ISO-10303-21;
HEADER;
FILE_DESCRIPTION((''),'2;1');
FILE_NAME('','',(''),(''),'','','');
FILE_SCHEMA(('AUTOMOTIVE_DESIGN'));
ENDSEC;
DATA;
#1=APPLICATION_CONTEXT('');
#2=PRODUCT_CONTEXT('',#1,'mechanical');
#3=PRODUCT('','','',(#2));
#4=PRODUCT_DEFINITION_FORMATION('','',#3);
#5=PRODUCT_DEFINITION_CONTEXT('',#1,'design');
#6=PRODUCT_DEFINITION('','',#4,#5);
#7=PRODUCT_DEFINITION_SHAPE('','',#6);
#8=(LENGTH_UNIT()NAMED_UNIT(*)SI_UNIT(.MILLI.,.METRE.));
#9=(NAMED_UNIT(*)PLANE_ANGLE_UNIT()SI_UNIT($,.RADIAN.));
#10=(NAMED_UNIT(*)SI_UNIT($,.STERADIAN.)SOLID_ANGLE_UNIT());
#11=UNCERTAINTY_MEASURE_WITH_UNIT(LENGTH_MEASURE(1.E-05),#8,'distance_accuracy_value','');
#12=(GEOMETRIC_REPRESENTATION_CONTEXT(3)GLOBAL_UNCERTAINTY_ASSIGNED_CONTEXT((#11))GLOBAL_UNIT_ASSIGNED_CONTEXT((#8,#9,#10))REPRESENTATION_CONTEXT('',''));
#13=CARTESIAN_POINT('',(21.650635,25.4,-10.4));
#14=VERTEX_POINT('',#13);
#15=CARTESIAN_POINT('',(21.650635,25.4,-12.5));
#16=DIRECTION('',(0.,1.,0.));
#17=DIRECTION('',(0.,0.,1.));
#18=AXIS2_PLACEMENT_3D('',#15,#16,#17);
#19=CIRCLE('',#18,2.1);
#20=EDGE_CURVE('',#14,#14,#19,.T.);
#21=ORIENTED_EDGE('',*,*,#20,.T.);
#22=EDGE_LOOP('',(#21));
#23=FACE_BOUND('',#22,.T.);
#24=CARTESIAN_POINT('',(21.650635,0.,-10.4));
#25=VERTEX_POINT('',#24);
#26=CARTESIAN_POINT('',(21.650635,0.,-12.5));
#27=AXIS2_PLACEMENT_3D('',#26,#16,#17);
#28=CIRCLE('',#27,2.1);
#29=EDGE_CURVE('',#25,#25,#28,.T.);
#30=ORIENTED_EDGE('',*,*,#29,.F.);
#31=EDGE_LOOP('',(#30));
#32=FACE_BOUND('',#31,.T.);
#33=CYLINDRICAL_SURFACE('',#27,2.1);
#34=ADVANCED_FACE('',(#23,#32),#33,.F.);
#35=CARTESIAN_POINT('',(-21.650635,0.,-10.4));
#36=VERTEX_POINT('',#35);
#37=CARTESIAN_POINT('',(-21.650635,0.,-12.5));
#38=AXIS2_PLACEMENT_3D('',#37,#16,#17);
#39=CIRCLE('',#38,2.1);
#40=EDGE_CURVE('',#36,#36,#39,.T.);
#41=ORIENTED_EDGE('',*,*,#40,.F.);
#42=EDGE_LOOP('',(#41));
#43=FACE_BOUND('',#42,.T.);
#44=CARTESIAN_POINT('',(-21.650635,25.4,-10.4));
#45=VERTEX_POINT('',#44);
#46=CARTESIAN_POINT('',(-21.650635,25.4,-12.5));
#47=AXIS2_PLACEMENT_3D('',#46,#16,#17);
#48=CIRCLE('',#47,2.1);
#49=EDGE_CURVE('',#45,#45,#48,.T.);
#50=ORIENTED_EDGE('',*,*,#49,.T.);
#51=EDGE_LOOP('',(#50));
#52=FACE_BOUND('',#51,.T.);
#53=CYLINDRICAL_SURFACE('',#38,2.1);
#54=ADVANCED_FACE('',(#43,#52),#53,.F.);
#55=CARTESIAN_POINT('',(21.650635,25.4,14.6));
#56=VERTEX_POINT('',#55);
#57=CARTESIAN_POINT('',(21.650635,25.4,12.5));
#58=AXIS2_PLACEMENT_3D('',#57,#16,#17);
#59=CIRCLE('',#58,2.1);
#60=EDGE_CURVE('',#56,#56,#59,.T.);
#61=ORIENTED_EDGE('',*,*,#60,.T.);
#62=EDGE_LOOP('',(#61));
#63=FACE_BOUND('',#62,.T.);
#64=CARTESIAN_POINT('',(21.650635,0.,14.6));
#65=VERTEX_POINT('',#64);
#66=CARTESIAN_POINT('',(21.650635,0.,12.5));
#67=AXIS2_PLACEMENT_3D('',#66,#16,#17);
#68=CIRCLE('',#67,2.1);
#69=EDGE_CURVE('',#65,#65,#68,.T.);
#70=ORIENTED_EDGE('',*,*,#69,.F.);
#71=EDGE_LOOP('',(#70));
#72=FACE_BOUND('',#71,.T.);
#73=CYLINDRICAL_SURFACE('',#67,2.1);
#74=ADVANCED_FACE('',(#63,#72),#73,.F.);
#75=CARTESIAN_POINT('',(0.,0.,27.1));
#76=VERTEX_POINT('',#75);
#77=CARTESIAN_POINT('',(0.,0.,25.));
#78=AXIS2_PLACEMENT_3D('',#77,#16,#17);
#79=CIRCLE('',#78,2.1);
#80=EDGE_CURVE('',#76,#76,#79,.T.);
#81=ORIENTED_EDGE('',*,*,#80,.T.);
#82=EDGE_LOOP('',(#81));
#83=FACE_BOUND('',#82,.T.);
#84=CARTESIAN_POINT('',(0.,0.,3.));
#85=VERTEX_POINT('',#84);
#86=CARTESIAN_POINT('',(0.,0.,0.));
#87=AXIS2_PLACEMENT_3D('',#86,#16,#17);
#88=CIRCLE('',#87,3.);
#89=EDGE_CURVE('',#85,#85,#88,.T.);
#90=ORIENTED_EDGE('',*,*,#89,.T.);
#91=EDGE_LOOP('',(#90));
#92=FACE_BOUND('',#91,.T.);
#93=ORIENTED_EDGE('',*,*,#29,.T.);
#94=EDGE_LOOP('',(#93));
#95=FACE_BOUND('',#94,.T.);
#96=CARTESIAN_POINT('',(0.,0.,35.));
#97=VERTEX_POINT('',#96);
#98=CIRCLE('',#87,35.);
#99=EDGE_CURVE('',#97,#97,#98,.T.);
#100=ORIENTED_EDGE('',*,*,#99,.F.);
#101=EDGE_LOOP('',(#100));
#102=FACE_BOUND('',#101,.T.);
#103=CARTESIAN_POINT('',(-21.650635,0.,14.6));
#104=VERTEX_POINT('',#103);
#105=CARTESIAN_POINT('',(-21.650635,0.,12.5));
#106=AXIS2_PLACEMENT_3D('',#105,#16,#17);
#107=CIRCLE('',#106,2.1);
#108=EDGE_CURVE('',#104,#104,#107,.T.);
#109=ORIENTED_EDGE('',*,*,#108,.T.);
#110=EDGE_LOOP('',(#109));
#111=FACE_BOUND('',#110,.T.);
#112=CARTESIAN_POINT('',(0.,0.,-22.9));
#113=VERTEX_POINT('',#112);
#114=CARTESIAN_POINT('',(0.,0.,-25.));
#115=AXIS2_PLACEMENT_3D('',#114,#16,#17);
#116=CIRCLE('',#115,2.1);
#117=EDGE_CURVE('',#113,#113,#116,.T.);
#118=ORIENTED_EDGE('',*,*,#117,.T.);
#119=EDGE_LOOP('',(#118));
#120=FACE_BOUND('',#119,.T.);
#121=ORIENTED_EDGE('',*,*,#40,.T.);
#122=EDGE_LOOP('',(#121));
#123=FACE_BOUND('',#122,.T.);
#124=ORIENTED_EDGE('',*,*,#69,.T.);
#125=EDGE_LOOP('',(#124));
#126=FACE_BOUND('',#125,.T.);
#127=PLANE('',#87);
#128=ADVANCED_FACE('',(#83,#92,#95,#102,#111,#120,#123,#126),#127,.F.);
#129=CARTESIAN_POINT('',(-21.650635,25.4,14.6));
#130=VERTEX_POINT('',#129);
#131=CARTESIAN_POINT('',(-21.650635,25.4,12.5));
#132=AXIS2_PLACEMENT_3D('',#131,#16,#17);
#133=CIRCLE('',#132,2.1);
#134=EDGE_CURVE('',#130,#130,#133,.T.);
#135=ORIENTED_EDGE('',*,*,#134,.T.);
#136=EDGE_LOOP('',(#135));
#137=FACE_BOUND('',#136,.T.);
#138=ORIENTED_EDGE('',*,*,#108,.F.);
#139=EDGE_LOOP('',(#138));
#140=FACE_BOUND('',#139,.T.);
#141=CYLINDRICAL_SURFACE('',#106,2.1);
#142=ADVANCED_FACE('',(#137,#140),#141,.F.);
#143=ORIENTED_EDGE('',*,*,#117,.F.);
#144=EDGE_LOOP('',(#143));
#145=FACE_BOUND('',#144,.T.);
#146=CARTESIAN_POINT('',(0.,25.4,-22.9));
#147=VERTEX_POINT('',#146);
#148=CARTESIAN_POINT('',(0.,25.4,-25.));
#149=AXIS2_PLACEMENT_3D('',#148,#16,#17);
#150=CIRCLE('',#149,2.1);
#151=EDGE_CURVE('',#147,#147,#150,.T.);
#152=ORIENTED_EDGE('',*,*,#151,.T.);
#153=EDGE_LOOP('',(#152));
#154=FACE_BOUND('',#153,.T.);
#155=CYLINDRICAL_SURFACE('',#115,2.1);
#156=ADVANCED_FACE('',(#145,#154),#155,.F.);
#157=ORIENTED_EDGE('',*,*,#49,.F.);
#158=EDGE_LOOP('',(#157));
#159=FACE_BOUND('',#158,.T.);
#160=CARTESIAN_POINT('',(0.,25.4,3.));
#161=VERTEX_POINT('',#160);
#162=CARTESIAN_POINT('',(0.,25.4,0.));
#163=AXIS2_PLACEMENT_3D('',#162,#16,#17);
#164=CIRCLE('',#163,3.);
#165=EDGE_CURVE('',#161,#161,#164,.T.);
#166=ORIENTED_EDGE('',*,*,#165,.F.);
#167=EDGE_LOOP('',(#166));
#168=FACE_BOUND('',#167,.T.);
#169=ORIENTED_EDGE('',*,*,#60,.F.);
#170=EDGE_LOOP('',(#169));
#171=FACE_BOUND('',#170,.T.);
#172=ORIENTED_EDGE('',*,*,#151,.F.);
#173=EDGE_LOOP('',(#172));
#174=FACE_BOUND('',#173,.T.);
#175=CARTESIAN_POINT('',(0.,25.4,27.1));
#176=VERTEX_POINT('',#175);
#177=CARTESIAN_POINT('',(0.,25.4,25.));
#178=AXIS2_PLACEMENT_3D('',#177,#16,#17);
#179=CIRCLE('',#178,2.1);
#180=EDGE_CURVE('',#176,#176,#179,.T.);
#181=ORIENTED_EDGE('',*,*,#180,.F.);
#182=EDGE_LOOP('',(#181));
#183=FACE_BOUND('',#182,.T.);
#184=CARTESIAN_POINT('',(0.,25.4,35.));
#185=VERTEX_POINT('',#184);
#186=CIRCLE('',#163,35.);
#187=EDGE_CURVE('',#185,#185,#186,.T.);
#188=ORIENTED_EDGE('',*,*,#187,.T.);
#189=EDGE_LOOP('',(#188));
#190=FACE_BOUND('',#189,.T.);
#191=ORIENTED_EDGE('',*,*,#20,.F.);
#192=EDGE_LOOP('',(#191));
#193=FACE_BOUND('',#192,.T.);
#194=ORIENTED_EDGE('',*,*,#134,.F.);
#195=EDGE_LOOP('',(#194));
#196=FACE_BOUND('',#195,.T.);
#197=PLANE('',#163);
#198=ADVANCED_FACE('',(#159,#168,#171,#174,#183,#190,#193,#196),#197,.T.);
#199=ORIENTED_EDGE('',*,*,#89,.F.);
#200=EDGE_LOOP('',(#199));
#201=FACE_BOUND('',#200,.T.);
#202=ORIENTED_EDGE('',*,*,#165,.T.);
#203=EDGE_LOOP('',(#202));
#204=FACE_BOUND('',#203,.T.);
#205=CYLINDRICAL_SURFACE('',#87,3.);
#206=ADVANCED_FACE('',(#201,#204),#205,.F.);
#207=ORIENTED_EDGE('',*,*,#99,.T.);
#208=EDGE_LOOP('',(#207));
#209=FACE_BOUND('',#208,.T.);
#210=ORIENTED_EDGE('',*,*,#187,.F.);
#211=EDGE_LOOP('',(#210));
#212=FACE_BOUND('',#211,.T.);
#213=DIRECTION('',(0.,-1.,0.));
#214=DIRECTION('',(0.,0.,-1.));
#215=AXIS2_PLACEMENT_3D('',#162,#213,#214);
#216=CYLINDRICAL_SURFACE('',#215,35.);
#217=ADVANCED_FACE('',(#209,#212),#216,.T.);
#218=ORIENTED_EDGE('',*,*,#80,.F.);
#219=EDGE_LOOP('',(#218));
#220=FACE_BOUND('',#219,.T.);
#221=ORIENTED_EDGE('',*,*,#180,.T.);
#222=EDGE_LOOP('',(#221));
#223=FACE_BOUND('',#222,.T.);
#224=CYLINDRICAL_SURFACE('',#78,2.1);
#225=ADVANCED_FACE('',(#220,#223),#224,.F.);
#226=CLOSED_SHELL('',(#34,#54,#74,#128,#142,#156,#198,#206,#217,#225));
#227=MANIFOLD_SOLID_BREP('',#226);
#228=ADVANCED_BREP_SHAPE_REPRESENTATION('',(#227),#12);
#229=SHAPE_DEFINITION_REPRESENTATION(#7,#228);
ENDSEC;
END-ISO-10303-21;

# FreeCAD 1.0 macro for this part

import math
import FreeCAD as App
import Part
import Sketcher

doc = App.newDocument("Part")
body = doc.addObject("PartDesign::Body", "Body")

# Sketch on XZ plane
sketch1 = body.newObject("Sketcher::SketchObject", "Sketch")
sketch1.AttachmentSupport = (doc.getObject("XZ_Plane"), [""])
sketch1.MapMode = "FlatFace"
sketch1.addGeometry(Part.Circle(App.Vector(0, 0, 0), App.Vector(0, 0, 1), 35), False)
sketch1.addConstraint([
    Sketcher.Constraint("Coincident", 0, 3, -1, 1),
    Sketcher.Constraint("Diameter", 0, 70.0),
])
pad1 = body.newObject("PartDesign::Pad", "Pad")
pad1.Profile = sketch1
pad1.Length = 25.4
pad1.Reversed = True

# Sketch on XZ plane
sketch2 = body.newObject("Sketcher::SketchObject", "Sketch001")
sketch2.AttachmentSupport = (doc.getObject("XZ_Plane"), [""])
sketch2.MapMode = "FlatFace"
sketch2.AttachmentOffset = App.Placement(App.Vector(0, 0, -25.4), App.Rotation())
sketch2.addGeometry([
    Part.ArcOfCircle(Part.Circle(App.Vector(0, 0, 0), App.Vector(0, 0, 1), 3), math.radians(-56.44269), math.radians(236.44269)),
    Part.ArcOfCircle(Part.Circle(App.Vector(0, 0, 0), App.Vector(0, 0, 1), 3), math.radians(-123.55731), math.radians(-56.44269)),
], False)
sketch2.addConstraint([
    Sketcher.Constraint("Tangent", 0, 1, 1, 2),
    Sketcher.Constraint("Coincident", 1, 1, 0, 2),
    Sketcher.Constraint("Coincident", 0, 3, -1, 1),
    Sketcher.Constraint("Horizontal", 0, 1, 1, 1),
    Sketcher.Constraint("Radius", 0, 3.0),
    Sketcher.Constraint("DistanceY", 0, 1, -1, 1, 2.5),
])
pocket1 = body.newObject("PartDesign::Pocket", "Pocket")
pocket1.Profile = sketch2
pocket1.Type = "ThroughAll"
pocket1.Reversed = True

# Sketch on XZ plane
sketch3 = body.newObject("Sketcher::SketchObject", "Sketch002")
sketch3.AttachmentSupport = (doc.getObject("XZ_Plane"), [""])
sketch3.MapMode = "FlatFace"
sketch3.AttachmentOffset = App.Placement(App.Vector(0, 0, -25.4), App.Rotation())
sketch3.addGeometry([
    Part.Circle(App.Vector(0, -25, 0), App.Vector(0, 0, 1), 2.1),  # 0
    Part.Circle(App.Vector(21.650635, -12.5, 0), App.Vector(0, 0, 1), 2.1),  # 1
    Part.Circle(App.Vector(21.650635, 12.5, 0), App.Vector(0, 0, 1), 2.1),  # 2
    Part.Circle(App.Vector(0, 25, 0), App.Vector(0, 0, 1), 2.1),  # 3
    Part.Circle(App.Vector(-21.650635, 12.5, 0), App.Vector(0, 0, 1), 2.1),  # 4
    Part.Circle(App.Vector(-21.650635, -12.5, 0), App.Vector(0, 0, 1), 2.1),  # 5
], False)
sketch3.addConstraint([
    Sketcher.Constraint("Equal", 0, 1),
    Sketcher.Constraint("Equal", 1, 2),
    Sketcher.Constraint("Equal", 2, 3),
    Sketcher.Constraint("Equal", 3, 4),
    Sketcher.Constraint("Equal", 4, 5),
    Sketcher.Constraint("Symmetric", 0, 3, 3, 3, -1, 1),
    Sketcher.Constraint("Symmetric", 1, 3, 4, 3, -1, 1),
    Sketcher.Constraint("Symmetric", 2, 3, 5, 3, -1, 1),
    Sketcher.Constraint("Symmetric", 2, 3, 4, 3, -2),
    Sketcher.Constraint("PointOnObject", 0, 3, -2),
    Sketcher.Constraint("Diameter", 0, 4.2),
    Sketcher.Constraint("DistanceY", 0, 3, -1, 1, 25.0),
    Sketcher.Constraint("DistanceY", 1, 3, 2, 3, 25.0),
    Sketcher.Constraint("DistanceX", 4, 3, 2, 3, 43.30127),
])
pocket2 = body.newObject("PartDesign::Pocket", "Pocket001")
pocket2.Profile = sketch3
pocket2.Type = "ThroughAll"
pocket2.Reversed = True

doc.recompute()
